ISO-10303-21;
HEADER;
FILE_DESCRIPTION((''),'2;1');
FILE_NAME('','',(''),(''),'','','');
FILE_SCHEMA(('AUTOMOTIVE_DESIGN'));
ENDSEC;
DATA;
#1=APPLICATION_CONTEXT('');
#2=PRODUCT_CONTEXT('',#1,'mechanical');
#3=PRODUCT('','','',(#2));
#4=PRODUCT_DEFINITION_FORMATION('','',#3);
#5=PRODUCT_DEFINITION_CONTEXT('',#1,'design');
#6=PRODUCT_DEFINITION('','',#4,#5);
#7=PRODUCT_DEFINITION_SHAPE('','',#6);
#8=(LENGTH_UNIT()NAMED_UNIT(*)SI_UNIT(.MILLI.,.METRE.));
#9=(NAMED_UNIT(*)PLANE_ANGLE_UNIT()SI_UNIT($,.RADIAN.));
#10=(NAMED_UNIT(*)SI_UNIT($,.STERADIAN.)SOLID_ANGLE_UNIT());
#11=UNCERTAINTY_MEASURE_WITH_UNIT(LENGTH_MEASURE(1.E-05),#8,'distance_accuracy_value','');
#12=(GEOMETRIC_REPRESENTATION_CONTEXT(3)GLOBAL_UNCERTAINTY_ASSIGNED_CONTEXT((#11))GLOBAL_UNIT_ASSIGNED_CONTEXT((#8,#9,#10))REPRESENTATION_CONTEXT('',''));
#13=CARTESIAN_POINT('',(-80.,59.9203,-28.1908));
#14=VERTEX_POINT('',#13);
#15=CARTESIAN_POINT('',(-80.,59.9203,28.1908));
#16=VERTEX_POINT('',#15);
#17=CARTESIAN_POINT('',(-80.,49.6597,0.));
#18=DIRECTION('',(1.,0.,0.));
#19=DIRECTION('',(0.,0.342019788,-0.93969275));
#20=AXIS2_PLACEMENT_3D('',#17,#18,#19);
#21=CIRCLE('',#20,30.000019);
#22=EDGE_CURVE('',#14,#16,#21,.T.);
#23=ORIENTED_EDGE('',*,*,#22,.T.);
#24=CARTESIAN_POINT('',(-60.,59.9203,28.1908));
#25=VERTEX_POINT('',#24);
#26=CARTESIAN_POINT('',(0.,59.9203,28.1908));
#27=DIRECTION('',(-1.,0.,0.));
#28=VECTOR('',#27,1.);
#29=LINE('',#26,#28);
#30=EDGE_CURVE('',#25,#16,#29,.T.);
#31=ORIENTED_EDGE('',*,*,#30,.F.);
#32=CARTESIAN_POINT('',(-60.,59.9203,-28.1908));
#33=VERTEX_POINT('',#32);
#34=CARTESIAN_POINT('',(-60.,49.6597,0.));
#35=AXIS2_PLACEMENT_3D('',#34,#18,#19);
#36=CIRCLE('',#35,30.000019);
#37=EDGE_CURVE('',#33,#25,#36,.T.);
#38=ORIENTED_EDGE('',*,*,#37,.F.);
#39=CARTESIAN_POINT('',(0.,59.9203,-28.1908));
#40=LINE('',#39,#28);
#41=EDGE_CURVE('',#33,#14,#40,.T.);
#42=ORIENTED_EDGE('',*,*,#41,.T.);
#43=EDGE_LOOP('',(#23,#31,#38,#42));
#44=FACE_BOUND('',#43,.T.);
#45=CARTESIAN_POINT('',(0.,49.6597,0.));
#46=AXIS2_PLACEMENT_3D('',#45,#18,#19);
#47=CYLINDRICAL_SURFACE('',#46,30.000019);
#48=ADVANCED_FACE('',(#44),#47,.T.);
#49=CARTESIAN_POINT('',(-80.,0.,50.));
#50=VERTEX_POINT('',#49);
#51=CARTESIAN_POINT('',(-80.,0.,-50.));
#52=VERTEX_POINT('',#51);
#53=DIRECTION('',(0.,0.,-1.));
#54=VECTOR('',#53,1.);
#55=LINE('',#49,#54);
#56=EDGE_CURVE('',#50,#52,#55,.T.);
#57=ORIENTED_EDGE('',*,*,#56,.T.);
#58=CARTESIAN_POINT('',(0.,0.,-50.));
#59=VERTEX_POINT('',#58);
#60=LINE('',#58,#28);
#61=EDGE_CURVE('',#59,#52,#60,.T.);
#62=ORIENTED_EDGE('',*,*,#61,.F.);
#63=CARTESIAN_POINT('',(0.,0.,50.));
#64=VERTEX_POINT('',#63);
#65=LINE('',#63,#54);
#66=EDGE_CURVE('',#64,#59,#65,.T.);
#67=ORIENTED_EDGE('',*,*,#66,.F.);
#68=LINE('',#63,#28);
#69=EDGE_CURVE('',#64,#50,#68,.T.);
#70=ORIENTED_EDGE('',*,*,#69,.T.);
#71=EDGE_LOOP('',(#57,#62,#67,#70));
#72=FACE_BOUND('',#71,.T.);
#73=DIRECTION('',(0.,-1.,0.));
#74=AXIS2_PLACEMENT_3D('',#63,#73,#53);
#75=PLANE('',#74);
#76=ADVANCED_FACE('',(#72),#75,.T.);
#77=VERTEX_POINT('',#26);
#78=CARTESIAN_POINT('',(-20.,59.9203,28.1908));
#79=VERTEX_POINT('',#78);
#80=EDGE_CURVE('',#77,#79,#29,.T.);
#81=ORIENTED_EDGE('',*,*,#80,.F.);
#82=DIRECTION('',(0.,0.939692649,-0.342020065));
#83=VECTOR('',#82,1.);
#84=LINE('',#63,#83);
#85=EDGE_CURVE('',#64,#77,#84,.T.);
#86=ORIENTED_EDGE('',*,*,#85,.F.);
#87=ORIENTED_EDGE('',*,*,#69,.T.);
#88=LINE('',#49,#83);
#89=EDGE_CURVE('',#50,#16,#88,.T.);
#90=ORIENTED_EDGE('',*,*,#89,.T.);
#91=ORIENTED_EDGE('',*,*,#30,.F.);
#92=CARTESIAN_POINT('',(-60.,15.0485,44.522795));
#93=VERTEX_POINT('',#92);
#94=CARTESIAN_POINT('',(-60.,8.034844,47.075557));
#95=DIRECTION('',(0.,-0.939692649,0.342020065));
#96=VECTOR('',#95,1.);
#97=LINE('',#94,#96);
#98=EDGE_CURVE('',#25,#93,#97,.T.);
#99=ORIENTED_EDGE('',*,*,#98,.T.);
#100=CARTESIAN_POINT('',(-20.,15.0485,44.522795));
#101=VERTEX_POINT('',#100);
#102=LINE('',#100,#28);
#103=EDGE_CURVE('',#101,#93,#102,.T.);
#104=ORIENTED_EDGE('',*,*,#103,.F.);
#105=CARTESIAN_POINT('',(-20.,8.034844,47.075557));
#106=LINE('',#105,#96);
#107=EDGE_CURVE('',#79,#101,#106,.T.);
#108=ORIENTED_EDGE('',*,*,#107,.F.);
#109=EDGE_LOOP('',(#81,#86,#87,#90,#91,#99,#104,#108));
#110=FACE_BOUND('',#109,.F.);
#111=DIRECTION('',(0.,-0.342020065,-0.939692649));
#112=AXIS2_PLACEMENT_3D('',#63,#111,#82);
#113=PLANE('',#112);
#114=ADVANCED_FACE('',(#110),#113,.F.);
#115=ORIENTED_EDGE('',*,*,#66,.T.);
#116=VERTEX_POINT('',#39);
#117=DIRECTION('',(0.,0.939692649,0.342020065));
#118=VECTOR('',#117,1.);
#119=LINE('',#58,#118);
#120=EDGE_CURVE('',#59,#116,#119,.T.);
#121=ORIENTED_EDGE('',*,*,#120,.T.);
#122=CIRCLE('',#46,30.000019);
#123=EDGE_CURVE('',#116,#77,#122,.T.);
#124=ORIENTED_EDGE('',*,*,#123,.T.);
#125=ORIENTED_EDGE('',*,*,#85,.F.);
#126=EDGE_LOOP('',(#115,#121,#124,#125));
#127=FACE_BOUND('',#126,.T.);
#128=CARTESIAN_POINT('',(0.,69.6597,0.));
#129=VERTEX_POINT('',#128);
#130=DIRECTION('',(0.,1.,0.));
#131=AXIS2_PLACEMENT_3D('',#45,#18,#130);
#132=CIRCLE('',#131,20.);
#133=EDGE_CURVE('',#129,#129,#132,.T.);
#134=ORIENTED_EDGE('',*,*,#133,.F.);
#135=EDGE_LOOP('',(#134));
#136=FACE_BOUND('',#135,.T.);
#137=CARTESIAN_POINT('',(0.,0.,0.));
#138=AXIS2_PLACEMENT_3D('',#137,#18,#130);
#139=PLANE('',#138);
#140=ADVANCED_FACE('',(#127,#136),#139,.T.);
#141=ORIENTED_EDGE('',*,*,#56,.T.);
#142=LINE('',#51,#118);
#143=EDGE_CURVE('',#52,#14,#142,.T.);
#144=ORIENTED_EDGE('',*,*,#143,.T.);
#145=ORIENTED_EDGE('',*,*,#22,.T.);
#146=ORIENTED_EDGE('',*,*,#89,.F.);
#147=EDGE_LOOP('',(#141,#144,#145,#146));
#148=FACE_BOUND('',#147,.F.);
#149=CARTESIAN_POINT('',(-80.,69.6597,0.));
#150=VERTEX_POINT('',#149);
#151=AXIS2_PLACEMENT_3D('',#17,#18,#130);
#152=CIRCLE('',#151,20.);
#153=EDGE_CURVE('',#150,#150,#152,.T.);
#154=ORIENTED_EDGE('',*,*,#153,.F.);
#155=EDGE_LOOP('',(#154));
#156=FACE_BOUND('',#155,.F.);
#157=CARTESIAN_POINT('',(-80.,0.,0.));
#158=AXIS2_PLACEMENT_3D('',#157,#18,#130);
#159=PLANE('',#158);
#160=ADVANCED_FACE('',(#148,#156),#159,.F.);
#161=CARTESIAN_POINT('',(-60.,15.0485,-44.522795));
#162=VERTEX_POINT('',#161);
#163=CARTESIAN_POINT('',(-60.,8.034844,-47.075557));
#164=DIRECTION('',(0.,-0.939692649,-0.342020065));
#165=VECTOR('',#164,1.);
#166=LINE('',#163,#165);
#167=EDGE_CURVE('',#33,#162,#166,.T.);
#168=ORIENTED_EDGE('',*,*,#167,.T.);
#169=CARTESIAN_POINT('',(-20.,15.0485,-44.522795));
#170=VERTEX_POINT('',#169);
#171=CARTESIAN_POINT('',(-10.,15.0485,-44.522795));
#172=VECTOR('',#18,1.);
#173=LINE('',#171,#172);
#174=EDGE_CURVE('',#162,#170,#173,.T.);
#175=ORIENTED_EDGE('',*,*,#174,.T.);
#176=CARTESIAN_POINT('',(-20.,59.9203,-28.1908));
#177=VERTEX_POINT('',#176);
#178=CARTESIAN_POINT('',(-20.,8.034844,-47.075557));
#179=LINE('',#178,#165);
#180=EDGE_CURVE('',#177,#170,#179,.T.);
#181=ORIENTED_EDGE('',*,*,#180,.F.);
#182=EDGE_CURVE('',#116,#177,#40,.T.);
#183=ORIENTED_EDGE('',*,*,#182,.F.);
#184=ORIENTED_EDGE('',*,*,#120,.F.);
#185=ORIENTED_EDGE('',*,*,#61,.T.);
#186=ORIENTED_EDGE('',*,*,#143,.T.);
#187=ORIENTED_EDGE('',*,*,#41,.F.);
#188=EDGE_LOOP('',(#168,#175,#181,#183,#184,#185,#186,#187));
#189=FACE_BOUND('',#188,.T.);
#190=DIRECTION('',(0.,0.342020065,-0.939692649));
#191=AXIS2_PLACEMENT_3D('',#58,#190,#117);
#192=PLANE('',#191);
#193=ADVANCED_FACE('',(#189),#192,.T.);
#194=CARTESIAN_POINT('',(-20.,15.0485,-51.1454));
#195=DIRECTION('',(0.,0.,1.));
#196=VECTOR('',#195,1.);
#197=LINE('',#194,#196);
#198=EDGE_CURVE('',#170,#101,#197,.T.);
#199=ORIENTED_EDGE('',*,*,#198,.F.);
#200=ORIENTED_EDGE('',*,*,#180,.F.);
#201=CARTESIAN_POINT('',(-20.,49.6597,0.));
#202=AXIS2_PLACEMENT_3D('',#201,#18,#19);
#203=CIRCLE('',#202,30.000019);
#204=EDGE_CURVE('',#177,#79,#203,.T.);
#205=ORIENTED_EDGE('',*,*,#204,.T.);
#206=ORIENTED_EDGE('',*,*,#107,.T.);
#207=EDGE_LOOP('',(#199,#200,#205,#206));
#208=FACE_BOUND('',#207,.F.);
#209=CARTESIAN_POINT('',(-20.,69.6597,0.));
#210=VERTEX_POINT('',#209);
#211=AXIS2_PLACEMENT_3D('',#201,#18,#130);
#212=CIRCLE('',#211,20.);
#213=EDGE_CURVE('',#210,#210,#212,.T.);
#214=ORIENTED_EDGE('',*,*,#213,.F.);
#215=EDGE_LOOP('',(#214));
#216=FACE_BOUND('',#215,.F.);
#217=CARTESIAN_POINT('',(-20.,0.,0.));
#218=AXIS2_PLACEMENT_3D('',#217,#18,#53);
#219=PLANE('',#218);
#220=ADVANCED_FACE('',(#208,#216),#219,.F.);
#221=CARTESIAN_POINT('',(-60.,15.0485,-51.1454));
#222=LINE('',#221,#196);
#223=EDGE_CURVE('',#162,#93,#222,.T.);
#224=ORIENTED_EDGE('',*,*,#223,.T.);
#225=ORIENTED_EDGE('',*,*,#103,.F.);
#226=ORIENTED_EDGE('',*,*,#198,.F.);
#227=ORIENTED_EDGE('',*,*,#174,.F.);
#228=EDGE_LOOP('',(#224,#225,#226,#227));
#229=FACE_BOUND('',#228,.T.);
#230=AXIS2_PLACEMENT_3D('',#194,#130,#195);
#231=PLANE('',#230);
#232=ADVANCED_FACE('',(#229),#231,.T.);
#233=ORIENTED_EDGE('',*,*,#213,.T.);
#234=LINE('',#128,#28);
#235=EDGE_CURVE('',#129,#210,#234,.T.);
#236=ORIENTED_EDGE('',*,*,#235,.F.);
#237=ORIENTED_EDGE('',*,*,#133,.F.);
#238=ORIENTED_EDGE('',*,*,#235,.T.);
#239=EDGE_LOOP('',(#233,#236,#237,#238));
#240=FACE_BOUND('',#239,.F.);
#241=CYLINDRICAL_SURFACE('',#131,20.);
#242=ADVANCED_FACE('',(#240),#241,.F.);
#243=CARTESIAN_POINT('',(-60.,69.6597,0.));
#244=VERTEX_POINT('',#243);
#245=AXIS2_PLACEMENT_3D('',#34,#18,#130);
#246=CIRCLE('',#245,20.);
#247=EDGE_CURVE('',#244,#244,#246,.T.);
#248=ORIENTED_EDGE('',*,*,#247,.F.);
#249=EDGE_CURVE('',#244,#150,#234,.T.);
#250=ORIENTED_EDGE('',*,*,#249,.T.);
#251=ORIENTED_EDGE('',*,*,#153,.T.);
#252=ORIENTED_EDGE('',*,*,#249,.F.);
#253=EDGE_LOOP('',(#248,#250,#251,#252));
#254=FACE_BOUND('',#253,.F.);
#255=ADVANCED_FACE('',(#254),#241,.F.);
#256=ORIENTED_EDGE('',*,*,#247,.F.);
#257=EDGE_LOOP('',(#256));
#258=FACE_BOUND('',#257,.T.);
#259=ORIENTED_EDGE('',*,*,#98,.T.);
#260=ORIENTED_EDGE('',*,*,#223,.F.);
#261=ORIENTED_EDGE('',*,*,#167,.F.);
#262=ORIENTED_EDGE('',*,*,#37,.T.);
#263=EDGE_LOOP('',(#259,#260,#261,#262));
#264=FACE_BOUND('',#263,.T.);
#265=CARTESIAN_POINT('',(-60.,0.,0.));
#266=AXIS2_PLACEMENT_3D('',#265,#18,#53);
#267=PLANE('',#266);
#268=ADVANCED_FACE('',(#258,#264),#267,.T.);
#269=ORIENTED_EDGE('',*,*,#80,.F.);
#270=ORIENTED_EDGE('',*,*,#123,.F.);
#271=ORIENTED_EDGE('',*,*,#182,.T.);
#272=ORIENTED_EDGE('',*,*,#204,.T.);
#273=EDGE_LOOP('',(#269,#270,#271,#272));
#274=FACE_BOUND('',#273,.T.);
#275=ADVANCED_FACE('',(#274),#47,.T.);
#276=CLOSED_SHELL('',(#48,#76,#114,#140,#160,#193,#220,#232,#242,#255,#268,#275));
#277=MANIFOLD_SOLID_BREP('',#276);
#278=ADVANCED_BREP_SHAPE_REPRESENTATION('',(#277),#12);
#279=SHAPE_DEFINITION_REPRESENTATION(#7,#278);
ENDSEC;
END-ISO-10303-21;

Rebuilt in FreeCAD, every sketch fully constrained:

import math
import FreeCAD as App
import Part
import Sketcher
from FreeCAD import Vector
Q = App.Units.Quantity

doc = App.newDocument("Part")
body = doc.addObject("PartDesign::Body", "Body")

# Sketch on YZ plane
sketch1 = body.newObject("Sketcher::SketchObject", "Sketch")
sketch1.AttachmentSupport = (doc.getObject("YZ_Plane"), [""])
sketch1.MapMode = "FlatFace"
sketch1.addGeometry([
    Part.LineSegment(Vector(60, 28, 0), Vector(0, 50, 0)),  # 0
    Part.LineSegment(Vector(0, 50, 0), Vector(0, -50, 0)),  # 1
    Part.LineSegment(Vector(0, -50, 0), Vector(60, -28, 0)),  # 2
    Part.ArcOfCircle(Part.Circle(Vector(50, 0, 0), Vector(0, 0, 1), 30), math.radians(-70), math.radians(70)),  # 3
    Part.Circle(Vector(50, 0, 0), Vector(0, 0, 1), 20),  # 4
], False)
sketch1.addConstraint([
    Sketcher.Constraint("Coincident", 0, 2, 1, 1),
    Sketcher.Constraint("Coincident", 1, 2, 2, 1),
    Sketcher.Constraint("Tangent", 2, 2, 3, 1),
    Sketcher.Constraint("Tangent", 3, 2, 0, 1),
    Sketcher.Constraint("Vertical", 1),
    Sketcher.Constraint("Coincident", 4, 3, 3, 3),
    Sketcher.Constraint("Symmetric", 0, 2, 1, 2, -1, 1),
    Sketcher.Constraint("PointOnObject", 3, 3, -1),
    Sketcher.Constraint("Diameter", 4, Q("1.5748 in")),
    Sketcher.Constraint("Radius", 3, Q("1.1811 in")),
    Sketcher.Constraint("DistanceY", 1, 2, 1, 1, Q("3.937 in")),
    Sketcher.Constraint("Angle", 0, Q("160 deg")),
])
pad1 = body.newObject("PartDesign::Pad", "Pad")
pad1.Profile = sketch1
pad1.Length = Q("3.1496063 in")
pad1.Reversed = True

# Sketch on YZ plane
sketch2 = body.newObject("Sketcher::SketchObject", "Sketch001")
sketch2.AttachmentSupport = (doc.getObject("YZ_Plane"), [""])
sketch2.MapMode = "FlatFace"
sketch2.AttachmentOffset = App.Placement(Vector(0, 0, -0.7874016 * 25.4), App.Rotation())
sketch2.addGeometry([
    Part.LineSegment(Vector(113, -51, 0), Vector(113, 57, 0)),
    Part.LineSegment(Vector(113, 57, 0), Vector(15, 57, 0)),
    Part.LineSegment(Vector(15, 57, 0), Vector(15, -51, 0)),
    Part.LineSegment(Vector(15, -51, 0), Vector(113, -51, 0)),
], False)
sketch2.addConstraint([
    Sketcher.Constraint("Coincident", 0, 2, 1, 1),
    Sketcher.Constraint("Coincident", 1, 2, 2, 1),
    Sketcher.Constraint("Coincident", 2, 2, 3, 1),
    Sketcher.Constraint("Coincident", 3, 2, 0, 1),
    Sketcher.Constraint("Vertical", 0),
    Sketcher.Constraint("Horizontal", 1),
    Sketcher.Constraint("Vertical", 2),
    Sketcher.Constraint("Horizontal", 3),
    Sketcher.Constraint("DistanceX", 1, 2, 1, 1, 97.7158),
    Sketcher.Constraint("DistanceY", 0, 1, 0, 2, 108.3872),
    Sketcher.Constraint("DistanceY", 2, 2, -1, 1, Q("2.0136 in")),
    Sketcher.Constraint("DistanceX", -1, 1, 0, 2, 112.7643),
])
pocket1 = body.newObject("PartDesign::Pocket", "Pocket")
pocket1.Profile = sketch2
pocket1.Length = Q("1.5748031 in")

doc.recompute()
